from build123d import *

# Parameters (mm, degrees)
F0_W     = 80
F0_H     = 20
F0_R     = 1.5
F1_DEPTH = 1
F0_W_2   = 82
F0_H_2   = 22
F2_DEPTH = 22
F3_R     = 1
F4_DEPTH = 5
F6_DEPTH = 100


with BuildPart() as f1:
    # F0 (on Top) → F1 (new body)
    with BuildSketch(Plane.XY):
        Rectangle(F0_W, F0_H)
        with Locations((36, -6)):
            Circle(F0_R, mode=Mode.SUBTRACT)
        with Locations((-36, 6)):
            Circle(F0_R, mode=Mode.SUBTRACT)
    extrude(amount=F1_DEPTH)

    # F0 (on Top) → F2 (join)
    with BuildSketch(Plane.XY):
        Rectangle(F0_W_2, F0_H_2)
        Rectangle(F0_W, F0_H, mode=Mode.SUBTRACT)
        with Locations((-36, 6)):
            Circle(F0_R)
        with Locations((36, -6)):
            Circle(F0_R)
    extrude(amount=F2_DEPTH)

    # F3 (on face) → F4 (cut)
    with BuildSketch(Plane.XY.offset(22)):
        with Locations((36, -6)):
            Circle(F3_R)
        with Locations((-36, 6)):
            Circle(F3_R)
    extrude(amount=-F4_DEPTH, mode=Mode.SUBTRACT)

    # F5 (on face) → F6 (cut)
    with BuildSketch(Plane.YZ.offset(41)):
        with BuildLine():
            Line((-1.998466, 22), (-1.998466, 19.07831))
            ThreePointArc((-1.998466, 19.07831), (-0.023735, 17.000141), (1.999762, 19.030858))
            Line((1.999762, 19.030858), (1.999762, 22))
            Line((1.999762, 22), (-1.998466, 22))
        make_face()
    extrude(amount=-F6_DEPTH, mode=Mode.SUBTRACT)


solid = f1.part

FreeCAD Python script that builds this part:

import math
import FreeCAD as App
import Part
import Sketcher

doc = App.newDocument("Part")
body = doc.addObject("PartDesign::Body", "Body")

sketch1 = body.newObject("Sketcher::SketchObject", "Sketch")
sketch1.AttachmentSupport = (doc.getObject("XY_Plane"), [""])
sketch1.MapMode = "FlatFace"
sketch1.addGeometry(Part.LineSegment(App.Vector(-40, 10, 0), App.Vector(-40, -10, 0)), False)
sketch1.addGeometry(Part.LineSegment(App.Vector(-40, -10, 0), App.Vector(40, -10, 0)), False)
sketch1.addGeometry(Part.LineSegment(App.Vector(40, -10, 0), App.Vector(40, 10, 0)), False)
sketch1.addGeometry(Part.LineSegment(App.Vector(40, 10, 0), App.Vector(-40, 10, 0)), False)
sketch1.addGeometry(Part.Circle(App.Vector(36, -6, 0), App.Vector(0, 0, 1), 1.5), False)
sketch1.addGeometry(Part.Circle(App.Vector(-36, 6, 0), App.Vector(0, 0, 1), 1.5), False)
sketch1.addConstraint(Sketcher.Constraint("Coincident", 0, 2, 1, 1))
sketch1.addConstraint(Sketcher.Constraint("Coincident", 1, 2, 2, 1))
sketch1.addConstraint(Sketcher.Constraint("Coincident", 2, 2, 3, 1))
sketch1.addConstraint(Sketcher.Constraint("Coincident", 3, 2, 0, 1))
sketch1.addConstraint(Sketcher.Constraint("Vertical", 0))
sketch1.addConstraint(Sketcher.Constraint("Horizontal", 1))
sketch1.addConstraint(Sketcher.Constraint("Vertical", 2))
sketch1.addConstraint(Sketcher.Constraint("Horizontal", 3))
sketch1.addConstraint(Sketcher.Constraint("Equal", 4, 5))
sketch1.addConstraint(Sketcher.Constraint("Symmetric", 4, 3, 5, 3, -1, 1))
sketch1.addConstraint(Sketcher.Constraint("Symmetric", 0, 2, 2, 2, -1, 1))
sketch1.addConstraint(Sketcher.Constraint("Diameter", 4, 3.0))
sketch1.addConstraint(Sketcher.Constraint("DistanceX", 1, 1, 1, 2, 80.0))
sketch1.addConstraint(Sketcher.Constraint("DistanceY", 0, 2, 0, 1, 20.0))
sketch1.addConstraint(Sketcher.Constraint("DistanceX", -1, 1, 4, 3, 36.0))
sketch1.addConstraint(Sketcher.Constraint("DistanceY", 4, 3, -1, 1, 6.0))
pad1 = body.newObject("PartDesign::Pad", "Pad")
pad1.Profile = sketch1
pad1.Length = 1

sketch2 = body.newObject("Sketcher::SketchObject", "Sketch001")
sketch2.AttachmentSupport = (doc.getObject("XY_Plane"), [""])
sketch2.MapMode = "FlatFace"
sketch2.addGeometry(Part.LineSegment(App.Vector(-41, 11, 0), App.Vector(-41, -11, 0)), False)
sketch2.addGeometry(Part.LineSegment(App.Vector(-41, -11, 0), App.Vector(41, -11, 0)), False)
sketch2.addGeometry(Part.LineSegment(App.Vector(41, -11, 0), App.Vector(41, 11, 0)), False)
sketch2.addGeometry(Part.LineSegment(App.Vector(41, 11, 0), App.Vector(-41, 11, 0)), False)
sketch2.addGeometry(Part.LineSegment(App.Vector(40, -10, 0), App.Vector(-40, -10, 0)), False)
sketch2.addGeometry(Part.LineSegment(App.Vector(-40, -10, 0), App.Vector(-40, 10, 0)), False)
sketch2.addGeometry(Part.LineSegment(App.Vector(-40, 10, 0), App.Vector(40, 10, 0)), False)
sketch2.addGeometry(Part.LineSegment(App.Vector(40, 10, 0), App.Vector(40, -10, 0)), False)
sketch2.addGeometry(Part.Circle(App.Vector(-36, 6, 0), App.Vector(0, 0, 1), 1.5), False)
sketch2.addGeometry(Part.Circle(App.Vector(36, -6, 0), App.Vector(0, 0, 1), 1.5), False)
sketch2.addConstraint(Sketcher.Constraint("Coincident", 0, 2, 1, 1))
sketch2.addConstraint(Sketcher.Constraint("Coincident", 1, 2, 2, 1))
sketch2.addConstraint(Sketcher.Constraint("Coincident", 2, 2, 3, 1))
sketch2.addConstraint(Sketcher.Constraint("Coincident", 3, 2, 0, 1))
sketch2.addConstraint(Sketcher.Constraint("Coincident", 4, 2, 5, 1))
sketch2.addConstraint(Sketcher.Constraint("Coincident", 5, 2, 6, 1))
sketch2.addConstraint(Sketcher.Constraint("Coincident", 6, 2, 7, 1))
sketch2.addConstraint(Sketcher.Constraint("Coincident", 7, 2, 4, 1))
sketch2.addConstraint(Sketcher.Constraint("Vertical", 0))
sketch2.addConstraint(Sketcher.Constraint("Horizontal", 1))
sketch2.addConstraint(Sketcher.Constraint("Vertical", 2))
sketch2.addConstraint(Sketcher.Constraint("Horizontal", 3))
sketch2.addConstraint(Sketcher.Constraint("Horizontal", 4))
sketch2.addConstraint(Sketcher.Constraint("Vertical", 5))
sketch2.addConstraint(Sketcher.Constraint("Horizontal", 6))
sketch2.addConstraint(Sketcher.Constraint("Vertical", 7))
sketch2.addConstraint(Sketcher.Constraint("Equal", 8, 9))
sketch2.addConstraint(Sketcher.Constraint("Symmetric", 8, 3, 9, 3, -1, 1))
sketch2.addConstraint(Sketcher.Constraint("Symmetric", 0, 2, 2, 2, -1, 1))
sketch2.addConstraint(Sketcher.Constraint("Symmetric", 4, 2, 6, 2, -1, 1))
sketch2.addConstraint(Sketcher.Constraint("Diameter", 8, 3.0))
sketch2.addConstraint(Sketcher.Constraint("DistanceX", 1, 1, 1, 2, 82.0))
sketch2.addConstraint(Sketcher.Constraint("DistanceX", 4, 2, 4, 1, 80.0))
sketch2.addConstraint(Sketcher.Constraint("DistanceY", 0, 2, 0, 1, 22.0))
sketch2.addConstraint(Sketcher.Constraint("DistanceY", 5, 1, 5, 2, 20.0))
sketch2.addConstraint(Sketcher.Constraint("DistanceX", 8, 3, -1, 1, 36.0))
sketch2.addConstraint(Sketcher.Constraint("DistanceY", -1, 1, 8, 3, 6.0))
pad2 = body.newObject("PartDesign::Pad", "Pad001")
pad2.Profile = sketch2
pad2.Length = 22

sketch3 = body.newObject("Sketcher::SketchObject", "Sketch002")
sketch3.AttachmentSupport = (doc.getObject("XY_Plane"), [""])
sketch3.MapMode = "FlatFace"
sketch3.AttachmentOffset = App.Placement(App.Vector(0, 0, 22), App.Rotation())
sketch3.addGeometry(Part.Circle(App.Vector(36, -6, 0), App.Vector(0, 0, 1), 1), False)
sketch3.addGeometry(Part.Circle(App.Vector(-36, 6, 0), App.Vector(0, 0, 1), 1), False)
sketch3.addConstraint(Sketcher.Constraint("Equal", 0, 1))
sketch3.addConstraint(Sketcher.Constraint("Symmetric", 0, 3, 1, 3, -1, 1))
sketch3.addConstraint(Sketcher.Constraint("Diameter", 0, 2.0))
sketch3.addConstraint(Sketcher.Constraint("DistanceX", -1, 1, 0, 3, 36.0))
sketch3.addConstraint(Sketcher.Constraint("DistanceY", 0, 3, -1, 1, 6.0))
pocket1 = body.newObject("PartDesign::Pocket", "Pocket")
pocket1.Profile = sketch3
pocket1.Length = 5

sketch4 = body.newObject("Sketcher::SketchObject", "Sketch003")
sketch4.AttachmentSupport = (doc.getObject("YZ_Plane"), [""])
sketch4.MapMode = "FlatFace"
sketch4.AttachmentOffset = App.Placement(App.Vector(0, 0, 41), App.Rotation())
sketch4.addGeometry(Part.LineSegment(App.Vector(-1.998466, 22, 0), App.Vector(-1.998466, 19.07831, 0)), False)
sketch4.addGeometry(Part.ArcOfCircle(Part.Circle(App.Vector(0, 19, 0), App.Vector(0, 0, 1), 2), math.radians(177.756011), math.radians(360.884051)), False)
sketch4.addGeometry(Part.LineSegment(App.Vector(1.999762, 19.030858, 0), App.Vector(1.999762, 22, 0)), False)
sketch4.addGeometry(Part.LineSegment(App.Vector(1.999762, 22, 0), App.Vector(-1.998466, 22, 0)), False)
sketch4.addConstraint(Sketcher.Constraint("Coincident", 0, 2, 1, 1))
sketch4.addConstraint(Sketcher.Constraint("Coincident", 1, 2, 2, 1))
sketch4.addConstraint(Sketcher.Constraint("Coincident", 2, 2, 3, 1))
sketch4.addConstraint(Sketcher.Constraint("Coincident", 3, 2, 0, 1))
sketch4.addConstraint(Sketcher.Constraint("Vertical", 0))
sketch4.addConstraint(Sketcher.Constraint("Vertical", 2))
sketch4.addConstraint(Sketcher.Constraint("Horizontal", 3))
sketch4.addConstraint(Sketcher.Constraint("PointOnObject", 1, 3, -2))
sketch4.addConstraint(Sketcher.Constraint("Radius", 1, 2.0))
sketch4.addConstraint(Sketcher.Constraint("DistanceY", -1, 1, 1, 3, 19.0))
sketch4.addConstraint(Sketcher.Constraint("DistanceY", -1, 1, 2, 2, 22.0))
sketch4.addConstraint(Sketcher.Constraint("DistanceX", 3, 2, 3, 1, 3.998228))
sketch4.addConstraint(Sketcher.Constraint("DistanceY", 0, 2, 0, 1, 2.92169))
pocket2 = body.newObject("PartDesign::Pocket", "Pocket001")
pocket2.Profile = sketch4
pocket2.Length = 100

doc.recompute()
